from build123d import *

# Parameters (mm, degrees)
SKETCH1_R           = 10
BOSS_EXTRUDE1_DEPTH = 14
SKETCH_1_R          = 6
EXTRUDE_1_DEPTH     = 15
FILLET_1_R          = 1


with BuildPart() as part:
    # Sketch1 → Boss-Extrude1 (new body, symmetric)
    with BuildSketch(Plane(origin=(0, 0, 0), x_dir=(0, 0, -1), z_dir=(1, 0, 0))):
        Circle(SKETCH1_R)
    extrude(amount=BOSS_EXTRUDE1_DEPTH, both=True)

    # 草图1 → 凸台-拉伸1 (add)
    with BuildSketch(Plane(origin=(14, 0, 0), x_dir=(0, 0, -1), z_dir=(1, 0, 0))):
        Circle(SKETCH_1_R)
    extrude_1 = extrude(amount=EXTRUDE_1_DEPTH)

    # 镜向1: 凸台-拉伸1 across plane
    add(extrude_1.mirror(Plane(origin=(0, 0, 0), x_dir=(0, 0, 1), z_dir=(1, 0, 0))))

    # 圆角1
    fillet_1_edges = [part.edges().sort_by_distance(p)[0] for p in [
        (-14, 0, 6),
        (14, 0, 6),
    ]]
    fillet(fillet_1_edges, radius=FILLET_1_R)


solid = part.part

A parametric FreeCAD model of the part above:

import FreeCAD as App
import Part
import Sketcher
from FreeCAD import Vector


def edges_at(feature, points):
    """Names of the edges that pass closest to the given points."""
    edges = feature.Shape.Edges
    near = lambda p: min(range(len(edges)), key=lambda i: edges[i].distToShape(Part.Vertex(*p))[0])
    return sorted({f"Edge{near(p) + 1}" for p in points})

doc = App.newDocument("Part")
body = doc.addObject("PartDesign::Body", "Body")

sketch1 = body.newObject("Sketcher::SketchObject", "Sketch")
sketch1.AttachmentSupport = (doc.getObject("YZ_Plane"), [""])
sketch1.MapMode = "FlatFace"
sketch1.addGeometry(Part.Circle(Vector(0, 0, 0), Vector(0, 0, 1), 10), False)
sketch1.addConstraint([
    Sketcher.Constraint("Coincident", 0, 3, -1, 1),
    Sketcher.Constraint("Diameter", 0, 20.0),
])
pad1 = body.newObject("PartDesign::Pad", "Pad")
pad1.Profile = sketch1
pad1.Length = 28
pad1.Midplane = True

sketch2 = body.newObject("Sketcher::SketchObject", "Sketch001")
sketch2.AttachmentSupport = (doc.getObject("YZ_Plane"), [""])
sketch2.MapMode = "FlatFace"
sketch2.AttachmentOffset = App.Placement(Vector(0, 0, 14), App.Rotation())
sketch2.addGeometry(Part.Circle(Vector(0, 0, 0), Vector(0, 0, 1), 6), False)
sketch2.addConstraint([
    Sketcher.Constraint("Coincident", 0, 3, -1, 1),
    Sketcher.Constraint("Diameter", 0, 12.0),
])
pad2 = body.newObject("PartDesign::Pad", "Pad001")
pad2.Profile = sketch2
pad2.Length = 15
doc.recompute()

mirrored = body.newObject("PartDesign::Mirrored", "Mirrored")
mirrored.Originals = [pad2]
mirrored.MirrorPlane = (doc.getObject("YZ_Plane"), [""])
body.Tip = mirrored
doc.recompute()

fillet = body.newObject("PartDesign::Fillet", "Fillet")
fillet.Base = (mirrored, edges_at(mirrored, [(-14, 0, 6), (14, 0, 6)]))
fillet.Radius = 1

doc.recompute()
